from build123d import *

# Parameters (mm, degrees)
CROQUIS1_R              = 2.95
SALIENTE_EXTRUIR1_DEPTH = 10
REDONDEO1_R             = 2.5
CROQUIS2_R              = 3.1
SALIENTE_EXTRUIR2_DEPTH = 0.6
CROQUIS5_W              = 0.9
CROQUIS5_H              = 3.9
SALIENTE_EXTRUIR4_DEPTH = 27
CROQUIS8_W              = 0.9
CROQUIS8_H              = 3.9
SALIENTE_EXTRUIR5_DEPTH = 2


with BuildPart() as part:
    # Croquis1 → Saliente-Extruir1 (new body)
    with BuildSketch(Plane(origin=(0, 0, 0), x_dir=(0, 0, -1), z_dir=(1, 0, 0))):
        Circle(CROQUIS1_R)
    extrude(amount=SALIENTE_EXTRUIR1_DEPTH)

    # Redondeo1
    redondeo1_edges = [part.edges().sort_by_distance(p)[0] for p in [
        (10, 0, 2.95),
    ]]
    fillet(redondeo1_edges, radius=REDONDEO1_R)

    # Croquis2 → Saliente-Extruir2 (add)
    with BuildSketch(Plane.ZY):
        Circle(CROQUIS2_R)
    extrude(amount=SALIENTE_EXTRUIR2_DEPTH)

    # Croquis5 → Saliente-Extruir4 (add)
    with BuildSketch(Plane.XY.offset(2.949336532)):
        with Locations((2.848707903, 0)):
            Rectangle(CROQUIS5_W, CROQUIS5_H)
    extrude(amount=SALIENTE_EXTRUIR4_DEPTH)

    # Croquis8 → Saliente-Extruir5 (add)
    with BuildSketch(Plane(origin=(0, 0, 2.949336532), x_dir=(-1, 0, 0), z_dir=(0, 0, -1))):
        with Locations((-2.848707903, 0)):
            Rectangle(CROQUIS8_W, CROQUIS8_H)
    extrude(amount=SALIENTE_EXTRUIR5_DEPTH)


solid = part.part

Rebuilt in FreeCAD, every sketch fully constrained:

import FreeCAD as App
import Part
import Sketcher
Q = App.Units.Quantity


def edges_at(feature, points):
    """Names of the edges that pass closest to the given points."""
    edges = feature.Shape.Edges
    near = lambda p: min(range(len(edges)), key=lambda i: edges[i].distToShape(Part.Vertex(*p))[0])
    return sorted({f"Edge{near(p) + 1}" for p in points})


def add_polygon(sketch, points):
    """Adds a closed chain of lines whose ends are joined by coincident constraints."""
    first, n = sketch.GeometryCount, len(points)
    for a, b in zip(points, points[1:] + points[:1]):
        sketch.addGeometry(Part.LineSegment(App.Vector(*a, 0), App.Vector(*b, 0)), False)
    for i in range(n):
        sketch.addConstraint(Sketcher.Constraint("Coincident", first + i, 2, first + (i + 1) % n, 1))

doc = App.newDocument("Part")
body = doc.addObject("PartDesign::Body", "Body")

# Sketch on YZ plane
sketch1 = doc.addObject("Sketcher::SketchObject", "Sketch")
body.addObject(sketch1)
sketch1.AttachmentSupport = (doc.YZ_Plane, [""])
sketch1.MapMode = "FlatFace"
sketch1.addGeometry(Part.Circle(App.Vector(0, 0, 0), App.Vector(0, 0, 1), 3), False)
sketch1.addConstraint([
    Sketcher.Constraint("Coincident", 0, 3, -1, 1),
    Sketcher.Constraint("Diameter", 0, Q("5.9 mm")),
])
pad1 = doc.addObject("PartDesign::Pad", "Pad")
body.addObject(pad1)
pad1.Profile = sketch1
pad1.Length = 10
doc.recompute()

fillet = doc.addObject("PartDesign::Fillet", "Fillet")
body.addObject(fillet)
fillet.Base = (pad1, edges_at(pad1, [(10, 0, 2.95)]))
fillet.Radius = 2.5

# Sketch on YZ plane
sketch2 = doc.addObject("Sketcher::SketchObject", "Sketch001")
body.addObject(sketch2)
sketch2.AttachmentSupport = (doc.YZ_Plane, [""])
sketch2.MapMode = "FlatFace"
sketch2.addGeometry(Part.Circle(App.Vector(0, 0, 0), App.Vector(0, 0, 1), 3.1), False)
sketch2.addConstraint([
    Sketcher.Constraint("Coincident", 0, 3, -1, 1),
    Sketcher.Constraint("Diameter", 0, Q("6.2 mm")),
])
pad2 = doc.addObject("PartDesign::Pad", "Pad001")
body.addObject(pad2)
pad2.Profile = sketch2
pad2.Length = 0.6
pad2.Reversed = True

# Sketch on XY plane
sketch3 = doc.addObject("Sketcher::SketchObject", "Sketch002")
body.addObject(sketch3)
sketch3.AttachmentSupport = (doc.XY_Plane, [""])
sketch3.MapMode = "FlatFace"
sketch3.AttachmentOffset = App.Placement(App.Vector(0, 0, 2.949337), App.Rotation())
add_polygon(sketch3, [(2.4, 1.9), (2.4, -1.9), (3.3, -1.9), (3.3, 1.9)])  # lines 0-3
sketch3.addConstraint([
    Sketcher.Constraint("Vertical", 0),
    Sketcher.Constraint("Horizontal", 1),
    Sketcher.Constraint("Vertical", 2),
    Sketcher.Constraint("Horizontal", 3),
    Sketcher.Constraint("DistanceX", 1, 1, 1, 2, Q("0.9 mm")),
    Sketcher.Constraint("DistanceY", 0, 2, 0, 1, Q("3.9 mm")),
    Sketcher.Constraint("DistanceY", 0, 2, -1, 1, Q("1.95 mm")),
    Sketcher.Constraint("DistanceX", -1, 1, 0, 2, Q("2.398708 mm")),
])
pad3 = doc.addObject("PartDesign::Pad", "Pad002")
body.addObject(pad3)
pad3.Profile = sketch3
pad3.Length = 27

# Sketch on XY plane
sketch4 = doc.addObject("Sketcher::SketchObject", "Sketch003")
body.addObject(sketch4)
sketch4.AttachmentSupport = (doc.XY_Plane, [""])
sketch4.MapMode = "FlatFace"
sketch4.AttachmentOffset = App.Placement(App.Vector(0, 0, 2.949337), App.Rotation())
add_polygon(sketch4, [(3.3, 1.9), (3.3, -1.9), (2.4, -1.9), (2.4, 1.9)])  # lines 0-3
sketch4.addConstraint([
    Sketcher.Constraint("Vertical", 0),
    Sketcher.Constraint("Horizontal", 1),
    Sketcher.Constraint("Vertical", 2),
    Sketcher.Constraint("Horizontal", 3),
    Sketcher.Constraint("DistanceX", 1, 2, 1, 1, Q("0.9 mm")),
    Sketcher.Constraint("DistanceY", 0, 2, 0, 1, Q("3.9 mm")),
    Sketcher.Constraint("DistanceY", 0, 2, -1, 1, Q("1.95 mm")),
    Sketcher.Constraint("DistanceX", -1, 1, 0, 2, Q("3.298708 mm")),
])
pad4 = doc.addObject("PartDesign::Pad", "Pad003")
body.addObject(pad4)
pad4.Profile = sketch4
pad4.Length = 2
pad4.Reversed = True

doc.recompute()
